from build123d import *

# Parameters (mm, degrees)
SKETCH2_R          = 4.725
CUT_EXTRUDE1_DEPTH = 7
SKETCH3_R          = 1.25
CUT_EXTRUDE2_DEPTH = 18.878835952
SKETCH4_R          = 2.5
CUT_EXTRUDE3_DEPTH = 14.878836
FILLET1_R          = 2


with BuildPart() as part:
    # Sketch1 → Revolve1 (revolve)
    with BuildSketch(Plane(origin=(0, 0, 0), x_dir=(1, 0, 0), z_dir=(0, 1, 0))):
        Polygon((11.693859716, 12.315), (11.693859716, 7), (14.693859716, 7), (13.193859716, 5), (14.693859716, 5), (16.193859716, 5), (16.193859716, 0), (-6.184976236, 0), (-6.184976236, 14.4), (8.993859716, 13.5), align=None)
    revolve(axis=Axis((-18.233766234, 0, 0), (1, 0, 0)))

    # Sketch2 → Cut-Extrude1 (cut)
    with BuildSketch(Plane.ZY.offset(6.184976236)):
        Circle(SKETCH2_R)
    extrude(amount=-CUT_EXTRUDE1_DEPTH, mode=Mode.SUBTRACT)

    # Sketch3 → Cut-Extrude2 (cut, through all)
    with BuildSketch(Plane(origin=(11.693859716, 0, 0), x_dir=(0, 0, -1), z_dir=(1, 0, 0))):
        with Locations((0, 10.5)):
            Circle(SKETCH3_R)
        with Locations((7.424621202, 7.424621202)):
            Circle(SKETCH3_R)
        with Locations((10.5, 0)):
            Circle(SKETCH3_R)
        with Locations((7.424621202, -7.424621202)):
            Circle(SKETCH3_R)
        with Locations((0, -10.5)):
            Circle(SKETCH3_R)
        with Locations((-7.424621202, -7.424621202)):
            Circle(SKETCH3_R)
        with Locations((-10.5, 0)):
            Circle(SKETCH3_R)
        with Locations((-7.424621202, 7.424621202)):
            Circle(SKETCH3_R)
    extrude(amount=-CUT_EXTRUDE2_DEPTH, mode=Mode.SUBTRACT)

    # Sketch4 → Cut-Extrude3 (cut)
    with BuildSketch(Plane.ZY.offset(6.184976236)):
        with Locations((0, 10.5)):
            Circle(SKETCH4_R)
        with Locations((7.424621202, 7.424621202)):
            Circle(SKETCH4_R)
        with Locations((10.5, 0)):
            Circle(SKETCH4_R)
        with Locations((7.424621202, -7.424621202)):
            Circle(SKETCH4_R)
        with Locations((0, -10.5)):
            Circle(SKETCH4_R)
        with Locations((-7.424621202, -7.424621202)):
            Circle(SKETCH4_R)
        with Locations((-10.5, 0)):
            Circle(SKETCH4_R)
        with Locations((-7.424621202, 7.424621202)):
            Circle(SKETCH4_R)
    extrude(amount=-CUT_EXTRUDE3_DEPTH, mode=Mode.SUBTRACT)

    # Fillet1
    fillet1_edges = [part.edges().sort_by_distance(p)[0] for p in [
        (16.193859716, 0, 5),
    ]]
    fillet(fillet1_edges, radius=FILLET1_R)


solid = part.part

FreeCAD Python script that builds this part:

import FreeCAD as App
import Part
import Sketcher
from FreeCAD import Vector


def edges_at(feature, points):
    """Names of the edges that pass closest to the given points."""
    edges = feature.Shape.Edges
    near = lambda p: min(range(len(edges)), key=lambda i: edges[i].distToShape(Part.Vertex(*p))[0])
    return sorted({f"Edge{near(p) + 1}" for p in points})


def add_polygon(sketch, points):
    """Adds a closed chain of lines whose ends are joined by coincident constraints."""
    first, n = sketch.GeometryCount, len(points)
    for a, b in zip(points, points[1:] + points[:1]):
        sketch.addGeometry(Part.LineSegment(App.Vector(*a, 0), App.Vector(*b, 0)), False)
    for i in range(n):
        sketch.addConstraint(Sketcher.Constraint("Coincident", first + i, 2, first + (i + 1) % n, 1))

doc = App.newDocument("Part")
body = doc.addObject("PartDesign::Body", "Body")

sketch1 = body.newObject("Sketcher::SketchObject", "Sketch")
sketch1.AttachmentSupport = (doc.getObject("XZ_Plane"), [""])
sketch1.MapMode = "FlatFace"
add_polygon(sketch1, [(11.7, -7), (11.7, -12.3), (9, -13.5), (-6.2, -14.4), (-6.2, 0), (16.2, 0), (16.2, -5), (13.2, -5), (14.7, -7)])
sketch1.addConstraint(Sketcher.Constraint("Vertical", 0))
sketch1.addConstraint(Sketcher.Constraint("Vertical", 3))
sketch1.addConstraint(Sketcher.Constraint("Horizontal", 4))
sketch1.addConstraint(Sketcher.Constraint("Vertical", 5))
sketch1.addConstraint(Sketcher.Constraint("Horizontal", 6))
sketch1.addConstraint(Sketcher.Constraint("Horizontal", 8))
sketch1.addConstraint(Sketcher.Constraint("PointOnObject", 3, 2, -1))
sketch1.addConstraint(Sketcher.Constraint("Equal", 6, 8))
sketch1.addConstraint(Sketcher.Constraint("DistanceX", 6, 2, 6, 1, 3.0))
sketch1.addConstraint(Sketcher.Constraint("DistanceY", 5, 2, 5, 1, 5.0))
sketch1.addConstraint(Sketcher.Constraint("DistanceY", 3, 1, 3, 2, 14.4))
sketch1.addConstraint(Sketcher.Constraint("DistanceY", 7, 2, -1, 1, 7.0))
sketch1.addConstraint(Sketcher.Constraint("Distance", 7, 2.5))
sketch1.addConstraint(Sketcher.Constraint("DistanceY", 1, 2, -1, 1, 13.5))
sketch1.addConstraint(Sketcher.Constraint("DistanceX", 1, 2, 0, 2, 2.7))
sketch1.addConstraint(Sketcher.Constraint("DistanceY", 0, 2, 0, 1, 5.315))
sketch1.addConstraint(Sketcher.Constraint("DistanceX", 4, 1, 4, 2, 22.378836))
sketch1.addConstraint(Sketcher.Constraint("DistanceX", -1, 1, 0, 2, 11.69386))
revolution = body.newObject("PartDesign::Revolution", "Revolution")
revolution.Profile = sketch1
revolution.ReferenceAxis = (sketch1, ["H_Axis"])
revolution.Angle = 360

sketch2 = body.newObject("Sketcher::SketchObject", "Sketch001")
sketch2.AttachmentSupport = (doc.getObject("YZ_Plane"), [""])
sketch2.MapMode = "FlatFace"
sketch2.AttachmentOffset = App.Placement(Vector(0, 0, -6.184976), App.Rotation())
sketch2.addGeometry(Part.Circle(Vector(0, 0, 0), Vector(0, 0, 1), 4.7), False)
sketch2.addConstraint(Sketcher.Constraint("Coincident", 0, 3, -1, 1))
sketch2.addConstraint(Sketcher.Constraint("Diameter", 0, 9.45))
pocket1 = body.newObject("PartDesign::Pocket", "Pocket")
pocket1.Profile = sketch2
pocket1.Length = 7
pocket1.Reversed = True

sketch3 = body.newObject("Sketcher::SketchObject", "Sketch002")
sketch3.AttachmentSupport = (doc.getObject("YZ_Plane"), [""])
sketch3.MapMode = "FlatFace"
sketch3.AttachmentOffset = App.Placement(Vector(0, 0, 11.69386), App.Rotation())
sketch3.addGeometry(Part.Circle(Vector(10.5, 0, 0), Vector(0, 0, 1), 1.2), False)
sketch3.addGeometry(Part.Circle(Vector(7.4, -7.4, 0), Vector(0, 0, 1), 1.2), False)
sketch3.addGeometry(Part.Circle(Vector(0, -10.5, 0), Vector(0, 0, 1), 1.2), False)
sketch3.addGeometry(Part.Circle(Vector(-7.4, -7.4, 0), Vector(0, 0, 1), 1.2), False)
sketch3.addGeometry(Part.Circle(Vector(-10.5, 0, 0), Vector(0, 0, 1), 1.2), False)
sketch3.addGeometry(Part.Circle(Vector(-7.4, 7.4, 0), Vector(0, 0, 1), 1.2), False)
sketch3.addGeometry(Part.Circle(Vector(0, 10.5, 0), Vector(0, 0, 1), 1.2), False)
sketch3.addGeometry(Part.Circle(Vector(7.4, 7.4, 0), Vector(0, 0, 1), 1.2), False)
sketch3.addConstraint(Sketcher.Constraint("Equal", 0, 1))
sketch3.addConstraint(Sketcher.Constraint("Equal", 1, 2))
sketch3.addConstraint(Sketcher.Constraint("Equal", 2, 3))
sketch3.addConstraint(Sketcher.Constraint("Equal", 3, 4))
sketch3.addConstraint(Sketcher.Constraint("Equal", 4, 5))
sketch3.addConstraint(Sketcher.Constraint("Equal", 5, 6))
sketch3.addConstraint(Sketcher.Constraint("Equal", 6, 7))
sketch3.addConstraint(Sketcher.Constraint("Symmetric", 0, 3, 4, 3, -1, 1))
sketch3.addConstraint(Sketcher.Constraint("Symmetric", 1, 3, 5, 3, -1, 1))
sketch3.addConstraint(Sketcher.Constraint("Symmetric", 2, 3, 6, 3, -1, 1))
sketch3.addConstraint(Sketcher.Constraint("Symmetric", 3, 3, 7, 3, -1, 1))
sketch3.addConstraint(Sketcher.Constraint("Symmetric", 1, 3, 3, 3, -2))
sketch3.addConstraint(Sketcher.Constraint("PointOnObject", 0, 3, -1))
sketch3.addConstraint(Sketcher.Constraint("PointOnObject", 2, 3, -2))
sketch3.addConstraint(Sketcher.Constraint("Diameter", 0, 2.5))
sketch3.addConstraint(Sketcher.Constraint("DistanceX", 4, 3, 0, 3, 21.0))
sketch3.addConstraint(Sketcher.Constraint("DistanceY", 2, 3, -1, 1, 10.5))
sketch3.addConstraint(Sketcher.Constraint("DistanceX", -1, 1, 1, 3, 7.424621))
sketch3.addConstraint(Sketcher.Constraint("DistanceY", 1, 3, -1, 1, 7.424621))
pocket2 = body.newObject("PartDesign::Pocket", "Pocket001")
pocket2.Profile = sketch3
pocket2.Type = "ThroughAll"

sketch4 = body.newObject("Sketcher::SketchObject", "Sketch003")
sketch4.AttachmentSupport = (doc.getObject("YZ_Plane"), [""])
sketch4.MapMode = "FlatFace"
sketch4.AttachmentOffset = App.Placement(Vector(0, 0, -6.184976), App.Rotation())
sketch4.addGeometry(Part.Circle(Vector(10.5, 0, 0), Vector(0, 0, 1), 2.5), False)
sketch4.addGeometry(Part.Circle(Vector(7.4, 7.4, 0), Vector(0, 0, 1), 2.5), False)
sketch4.addGeometry(Part.Circle(Vector(0, 10.5, 0), Vector(0, 0, 1), 2.5), False)
sketch4.addGeometry(Part.Circle(Vector(-7.4, 7.4, 0), Vector(0, 0, 1), 2.5), False)
sketch4.addGeometry(Part.Circle(Vector(-10.5, 0, 0), Vector(0, 0, 1), 2.5), False)
sketch4.addGeometry(Part.Circle(Vector(-7.4, -7.4, 0), Vector(0, 0, 1), 2.5), False)
sketch4.addGeometry(Part.Circle(Vector(0, -10.5, 0), Vector(0, 0, 1), 2.5), False)
sketch4.addGeometry(Part.Circle(Vector(7.4, -7.4, 0), Vector(0, 0, 1), 2.5), False)
sketch4.addConstraint(Sketcher.Constraint("Equal", 0, 1))
sketch4.addConstraint(Sketcher.Constraint("Equal", 1, 2))
sketch4.addConstraint(Sketcher.Constraint("Equal", 2, 3))
sketch4.addConstraint(Sketcher.Constraint("Equal", 3, 4))
sketch4.addConstraint(Sketcher.Constraint("Equal", 4, 5))
sketch4.addConstraint(Sketcher.Constraint("Equal", 5, 6))
sketch4.addConstraint(Sketcher.Constraint("Equal", 6, 7))
sketch4.addConstraint(Sketcher.Constraint("Symmetric", 0, 3, 4, 3, -1, 1))
sketch4.addConstraint(Sketcher.Constraint("Symmetric", 1, 3, 5, 3, -1, 1))
sketch4.addConstraint(Sketcher.Constraint("Symmetric", 2, 3, 6, 3, -1, 1))
sketch4.addConstraint(Sketcher.Constraint("Symmetric", 3, 3, 7, 3, -1, 1))
sketch4.addConstraint(Sketcher.Constraint("Symmetric", 1, 3, 3, 3, -2))
sketch4.addConstraint(Sketcher.Constraint("PointOnObject", 0, 3, -1))
sketch4.addConstraint(Sketcher.Constraint("PointOnObject", 2, 3, -2))
sketch4.addConstraint(Sketcher.Constraint("Diameter", 0, 5.0))
sketch4.addConstraint(Sketcher.Constraint("DistanceX", 4, 3, 0, 3, 21.0))
sketch4.addConstraint(Sketcher.Constraint("DistanceY", -1, 1, 2, 3, 10.5))
sketch4.addConstraint(Sketcher.Constraint("DistanceX", -1, 1, 1, 3, 7.424621))
sketch4.addConstraint(Sketcher.Constraint("DistanceY", -1, 1, 1, 3, 7.424621))
pocket3 = body.newObject("PartDesign::Pocket", "Pocket002")
pocket3.Profile = sketch4
pocket3.Length = 14.878836
pocket3.Reversed = True
doc.recompute()

fillet = body.newObject("PartDesign::Fillet", "Fillet")
fillet.Base = (pocket3, edges_at(pocket3, [(16.194, 0, 5)]))
fillet.Radius = 2

doc.recompute()
